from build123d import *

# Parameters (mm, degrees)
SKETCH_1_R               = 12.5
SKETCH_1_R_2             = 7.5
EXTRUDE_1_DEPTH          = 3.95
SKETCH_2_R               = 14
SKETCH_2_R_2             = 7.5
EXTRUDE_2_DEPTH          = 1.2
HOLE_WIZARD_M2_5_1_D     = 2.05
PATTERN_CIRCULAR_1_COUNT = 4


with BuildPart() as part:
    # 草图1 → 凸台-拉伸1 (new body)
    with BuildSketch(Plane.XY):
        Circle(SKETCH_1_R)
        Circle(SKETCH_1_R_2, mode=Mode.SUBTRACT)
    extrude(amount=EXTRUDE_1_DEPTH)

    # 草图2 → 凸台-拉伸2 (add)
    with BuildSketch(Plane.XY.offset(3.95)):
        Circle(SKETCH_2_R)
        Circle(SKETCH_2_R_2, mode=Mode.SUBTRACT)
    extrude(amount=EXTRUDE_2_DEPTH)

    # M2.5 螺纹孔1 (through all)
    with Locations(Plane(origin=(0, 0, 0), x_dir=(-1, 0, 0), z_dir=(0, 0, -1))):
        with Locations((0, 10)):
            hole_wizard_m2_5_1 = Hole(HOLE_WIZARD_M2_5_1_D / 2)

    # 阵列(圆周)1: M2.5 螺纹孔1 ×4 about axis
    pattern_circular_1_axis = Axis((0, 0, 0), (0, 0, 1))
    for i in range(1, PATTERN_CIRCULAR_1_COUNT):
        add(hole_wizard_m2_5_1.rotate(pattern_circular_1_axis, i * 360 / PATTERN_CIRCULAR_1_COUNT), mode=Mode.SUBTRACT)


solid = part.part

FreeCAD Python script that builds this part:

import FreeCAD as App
import Part
import Sketcher
from FreeCAD import Vector

doc = App.newDocument("Part")
body = doc.addObject("PartDesign::Body", "Body")

# Sketch on XY plane
sketch1 = body.newObject("Sketcher::SketchObject", "Sketch")
sketch1.AttachmentSupport = (doc.getObject("XY_Plane"), [""])
sketch1.MapMode = "FlatFace"
sketch1.addGeometry([
    Part.Circle(Vector(0, 0, 0), Vector(0, 0, 1), 12),
    Part.Circle(Vector(0, 0, 0), Vector(0, 0, 1), 8),
], False)
sketch1.addConstraint([
    Sketcher.Constraint("Coincident", 0, 3, -1, 1),
    Sketcher.Constraint("Coincident", 1, 3, -1, 1),
    Sketcher.Constraint("Diameter", 0, 25.0),
    Sketcher.Constraint("Diameter", 1, 15.0),
])
pad1 = body.newObject("PartDesign::Pad", "Pad")
pad1.Profile = sketch1
pad1.Length = 3.95

# Sketch on XY plane
sketch2 = body.newObject("Sketcher::SketchObject", "Sketch001")
sketch2.AttachmentSupport = (doc.getObject("XY_Plane"), [""])
sketch2.MapMode = "FlatFace"
sketch2.AttachmentOffset = App.Placement(Vector(0, 0, 3.95), App.Rotation())
sketch2.addGeometry([
    Part.Circle(Vector(0, 0, 0), Vector(0, 0, 1), 14),
    Part.Circle(Vector(0, 0, 0), Vector(0, 0, 1), 8),
], False)
sketch2.addConstraint([
    Sketcher.Constraint("Coincident", 0, 3, -1, 1),
    Sketcher.Constraint("Coincident", 1, 3, -1, 1),
    Sketcher.Constraint("Diameter", 0, 28.0),
    Sketcher.Constraint("Diameter", 1, 15.0),
])
pad2 = body.newObject("PartDesign::Pad", "Pad001")
pad2.Profile = sketch2
pad2.Length = 1.2

# Sketch on XY plane
sketch3 = body.newObject("Sketcher::SketchObject", "Sketch002")
sketch3.AttachmentSupport = (doc.getObject("XY_Plane"), [""])
sketch3.MapMode = "FlatFace"
sketch3.addGeometry(Part.Circle(Vector(0, 10, 0), Vector(0, 0, 1), 1), False)
sketch3.addConstraint([
    Sketcher.Constraint("PointOnObject", 0, 3, -2),
    Sketcher.Constraint("Diameter", 0, 2.05),
    Sketcher.Constraint("DistanceY", -1, 1, 0, 3, 10.0),
])
doc.recompute()
hole = body.newObject("PartDesign::Hole", "Hole")
hole.Profile = sketch3
hole.ThreadType = "None"
hole.Diameter = 2.05
hole.DepthType = "ThroughAll"
hole.Reversed = True
doc.recompute()

polarpattern = body.newObject("PartDesign::PolarPattern", "PolarPattern")
polarpattern.Originals = [hole]
polarpattern.Axis = (doc.getObject("Z_Axis"), [""])
polarpattern.Angle = 360
polarpattern.Occurrences = 4
body.Tip = polarpattern

doc.recompute()
